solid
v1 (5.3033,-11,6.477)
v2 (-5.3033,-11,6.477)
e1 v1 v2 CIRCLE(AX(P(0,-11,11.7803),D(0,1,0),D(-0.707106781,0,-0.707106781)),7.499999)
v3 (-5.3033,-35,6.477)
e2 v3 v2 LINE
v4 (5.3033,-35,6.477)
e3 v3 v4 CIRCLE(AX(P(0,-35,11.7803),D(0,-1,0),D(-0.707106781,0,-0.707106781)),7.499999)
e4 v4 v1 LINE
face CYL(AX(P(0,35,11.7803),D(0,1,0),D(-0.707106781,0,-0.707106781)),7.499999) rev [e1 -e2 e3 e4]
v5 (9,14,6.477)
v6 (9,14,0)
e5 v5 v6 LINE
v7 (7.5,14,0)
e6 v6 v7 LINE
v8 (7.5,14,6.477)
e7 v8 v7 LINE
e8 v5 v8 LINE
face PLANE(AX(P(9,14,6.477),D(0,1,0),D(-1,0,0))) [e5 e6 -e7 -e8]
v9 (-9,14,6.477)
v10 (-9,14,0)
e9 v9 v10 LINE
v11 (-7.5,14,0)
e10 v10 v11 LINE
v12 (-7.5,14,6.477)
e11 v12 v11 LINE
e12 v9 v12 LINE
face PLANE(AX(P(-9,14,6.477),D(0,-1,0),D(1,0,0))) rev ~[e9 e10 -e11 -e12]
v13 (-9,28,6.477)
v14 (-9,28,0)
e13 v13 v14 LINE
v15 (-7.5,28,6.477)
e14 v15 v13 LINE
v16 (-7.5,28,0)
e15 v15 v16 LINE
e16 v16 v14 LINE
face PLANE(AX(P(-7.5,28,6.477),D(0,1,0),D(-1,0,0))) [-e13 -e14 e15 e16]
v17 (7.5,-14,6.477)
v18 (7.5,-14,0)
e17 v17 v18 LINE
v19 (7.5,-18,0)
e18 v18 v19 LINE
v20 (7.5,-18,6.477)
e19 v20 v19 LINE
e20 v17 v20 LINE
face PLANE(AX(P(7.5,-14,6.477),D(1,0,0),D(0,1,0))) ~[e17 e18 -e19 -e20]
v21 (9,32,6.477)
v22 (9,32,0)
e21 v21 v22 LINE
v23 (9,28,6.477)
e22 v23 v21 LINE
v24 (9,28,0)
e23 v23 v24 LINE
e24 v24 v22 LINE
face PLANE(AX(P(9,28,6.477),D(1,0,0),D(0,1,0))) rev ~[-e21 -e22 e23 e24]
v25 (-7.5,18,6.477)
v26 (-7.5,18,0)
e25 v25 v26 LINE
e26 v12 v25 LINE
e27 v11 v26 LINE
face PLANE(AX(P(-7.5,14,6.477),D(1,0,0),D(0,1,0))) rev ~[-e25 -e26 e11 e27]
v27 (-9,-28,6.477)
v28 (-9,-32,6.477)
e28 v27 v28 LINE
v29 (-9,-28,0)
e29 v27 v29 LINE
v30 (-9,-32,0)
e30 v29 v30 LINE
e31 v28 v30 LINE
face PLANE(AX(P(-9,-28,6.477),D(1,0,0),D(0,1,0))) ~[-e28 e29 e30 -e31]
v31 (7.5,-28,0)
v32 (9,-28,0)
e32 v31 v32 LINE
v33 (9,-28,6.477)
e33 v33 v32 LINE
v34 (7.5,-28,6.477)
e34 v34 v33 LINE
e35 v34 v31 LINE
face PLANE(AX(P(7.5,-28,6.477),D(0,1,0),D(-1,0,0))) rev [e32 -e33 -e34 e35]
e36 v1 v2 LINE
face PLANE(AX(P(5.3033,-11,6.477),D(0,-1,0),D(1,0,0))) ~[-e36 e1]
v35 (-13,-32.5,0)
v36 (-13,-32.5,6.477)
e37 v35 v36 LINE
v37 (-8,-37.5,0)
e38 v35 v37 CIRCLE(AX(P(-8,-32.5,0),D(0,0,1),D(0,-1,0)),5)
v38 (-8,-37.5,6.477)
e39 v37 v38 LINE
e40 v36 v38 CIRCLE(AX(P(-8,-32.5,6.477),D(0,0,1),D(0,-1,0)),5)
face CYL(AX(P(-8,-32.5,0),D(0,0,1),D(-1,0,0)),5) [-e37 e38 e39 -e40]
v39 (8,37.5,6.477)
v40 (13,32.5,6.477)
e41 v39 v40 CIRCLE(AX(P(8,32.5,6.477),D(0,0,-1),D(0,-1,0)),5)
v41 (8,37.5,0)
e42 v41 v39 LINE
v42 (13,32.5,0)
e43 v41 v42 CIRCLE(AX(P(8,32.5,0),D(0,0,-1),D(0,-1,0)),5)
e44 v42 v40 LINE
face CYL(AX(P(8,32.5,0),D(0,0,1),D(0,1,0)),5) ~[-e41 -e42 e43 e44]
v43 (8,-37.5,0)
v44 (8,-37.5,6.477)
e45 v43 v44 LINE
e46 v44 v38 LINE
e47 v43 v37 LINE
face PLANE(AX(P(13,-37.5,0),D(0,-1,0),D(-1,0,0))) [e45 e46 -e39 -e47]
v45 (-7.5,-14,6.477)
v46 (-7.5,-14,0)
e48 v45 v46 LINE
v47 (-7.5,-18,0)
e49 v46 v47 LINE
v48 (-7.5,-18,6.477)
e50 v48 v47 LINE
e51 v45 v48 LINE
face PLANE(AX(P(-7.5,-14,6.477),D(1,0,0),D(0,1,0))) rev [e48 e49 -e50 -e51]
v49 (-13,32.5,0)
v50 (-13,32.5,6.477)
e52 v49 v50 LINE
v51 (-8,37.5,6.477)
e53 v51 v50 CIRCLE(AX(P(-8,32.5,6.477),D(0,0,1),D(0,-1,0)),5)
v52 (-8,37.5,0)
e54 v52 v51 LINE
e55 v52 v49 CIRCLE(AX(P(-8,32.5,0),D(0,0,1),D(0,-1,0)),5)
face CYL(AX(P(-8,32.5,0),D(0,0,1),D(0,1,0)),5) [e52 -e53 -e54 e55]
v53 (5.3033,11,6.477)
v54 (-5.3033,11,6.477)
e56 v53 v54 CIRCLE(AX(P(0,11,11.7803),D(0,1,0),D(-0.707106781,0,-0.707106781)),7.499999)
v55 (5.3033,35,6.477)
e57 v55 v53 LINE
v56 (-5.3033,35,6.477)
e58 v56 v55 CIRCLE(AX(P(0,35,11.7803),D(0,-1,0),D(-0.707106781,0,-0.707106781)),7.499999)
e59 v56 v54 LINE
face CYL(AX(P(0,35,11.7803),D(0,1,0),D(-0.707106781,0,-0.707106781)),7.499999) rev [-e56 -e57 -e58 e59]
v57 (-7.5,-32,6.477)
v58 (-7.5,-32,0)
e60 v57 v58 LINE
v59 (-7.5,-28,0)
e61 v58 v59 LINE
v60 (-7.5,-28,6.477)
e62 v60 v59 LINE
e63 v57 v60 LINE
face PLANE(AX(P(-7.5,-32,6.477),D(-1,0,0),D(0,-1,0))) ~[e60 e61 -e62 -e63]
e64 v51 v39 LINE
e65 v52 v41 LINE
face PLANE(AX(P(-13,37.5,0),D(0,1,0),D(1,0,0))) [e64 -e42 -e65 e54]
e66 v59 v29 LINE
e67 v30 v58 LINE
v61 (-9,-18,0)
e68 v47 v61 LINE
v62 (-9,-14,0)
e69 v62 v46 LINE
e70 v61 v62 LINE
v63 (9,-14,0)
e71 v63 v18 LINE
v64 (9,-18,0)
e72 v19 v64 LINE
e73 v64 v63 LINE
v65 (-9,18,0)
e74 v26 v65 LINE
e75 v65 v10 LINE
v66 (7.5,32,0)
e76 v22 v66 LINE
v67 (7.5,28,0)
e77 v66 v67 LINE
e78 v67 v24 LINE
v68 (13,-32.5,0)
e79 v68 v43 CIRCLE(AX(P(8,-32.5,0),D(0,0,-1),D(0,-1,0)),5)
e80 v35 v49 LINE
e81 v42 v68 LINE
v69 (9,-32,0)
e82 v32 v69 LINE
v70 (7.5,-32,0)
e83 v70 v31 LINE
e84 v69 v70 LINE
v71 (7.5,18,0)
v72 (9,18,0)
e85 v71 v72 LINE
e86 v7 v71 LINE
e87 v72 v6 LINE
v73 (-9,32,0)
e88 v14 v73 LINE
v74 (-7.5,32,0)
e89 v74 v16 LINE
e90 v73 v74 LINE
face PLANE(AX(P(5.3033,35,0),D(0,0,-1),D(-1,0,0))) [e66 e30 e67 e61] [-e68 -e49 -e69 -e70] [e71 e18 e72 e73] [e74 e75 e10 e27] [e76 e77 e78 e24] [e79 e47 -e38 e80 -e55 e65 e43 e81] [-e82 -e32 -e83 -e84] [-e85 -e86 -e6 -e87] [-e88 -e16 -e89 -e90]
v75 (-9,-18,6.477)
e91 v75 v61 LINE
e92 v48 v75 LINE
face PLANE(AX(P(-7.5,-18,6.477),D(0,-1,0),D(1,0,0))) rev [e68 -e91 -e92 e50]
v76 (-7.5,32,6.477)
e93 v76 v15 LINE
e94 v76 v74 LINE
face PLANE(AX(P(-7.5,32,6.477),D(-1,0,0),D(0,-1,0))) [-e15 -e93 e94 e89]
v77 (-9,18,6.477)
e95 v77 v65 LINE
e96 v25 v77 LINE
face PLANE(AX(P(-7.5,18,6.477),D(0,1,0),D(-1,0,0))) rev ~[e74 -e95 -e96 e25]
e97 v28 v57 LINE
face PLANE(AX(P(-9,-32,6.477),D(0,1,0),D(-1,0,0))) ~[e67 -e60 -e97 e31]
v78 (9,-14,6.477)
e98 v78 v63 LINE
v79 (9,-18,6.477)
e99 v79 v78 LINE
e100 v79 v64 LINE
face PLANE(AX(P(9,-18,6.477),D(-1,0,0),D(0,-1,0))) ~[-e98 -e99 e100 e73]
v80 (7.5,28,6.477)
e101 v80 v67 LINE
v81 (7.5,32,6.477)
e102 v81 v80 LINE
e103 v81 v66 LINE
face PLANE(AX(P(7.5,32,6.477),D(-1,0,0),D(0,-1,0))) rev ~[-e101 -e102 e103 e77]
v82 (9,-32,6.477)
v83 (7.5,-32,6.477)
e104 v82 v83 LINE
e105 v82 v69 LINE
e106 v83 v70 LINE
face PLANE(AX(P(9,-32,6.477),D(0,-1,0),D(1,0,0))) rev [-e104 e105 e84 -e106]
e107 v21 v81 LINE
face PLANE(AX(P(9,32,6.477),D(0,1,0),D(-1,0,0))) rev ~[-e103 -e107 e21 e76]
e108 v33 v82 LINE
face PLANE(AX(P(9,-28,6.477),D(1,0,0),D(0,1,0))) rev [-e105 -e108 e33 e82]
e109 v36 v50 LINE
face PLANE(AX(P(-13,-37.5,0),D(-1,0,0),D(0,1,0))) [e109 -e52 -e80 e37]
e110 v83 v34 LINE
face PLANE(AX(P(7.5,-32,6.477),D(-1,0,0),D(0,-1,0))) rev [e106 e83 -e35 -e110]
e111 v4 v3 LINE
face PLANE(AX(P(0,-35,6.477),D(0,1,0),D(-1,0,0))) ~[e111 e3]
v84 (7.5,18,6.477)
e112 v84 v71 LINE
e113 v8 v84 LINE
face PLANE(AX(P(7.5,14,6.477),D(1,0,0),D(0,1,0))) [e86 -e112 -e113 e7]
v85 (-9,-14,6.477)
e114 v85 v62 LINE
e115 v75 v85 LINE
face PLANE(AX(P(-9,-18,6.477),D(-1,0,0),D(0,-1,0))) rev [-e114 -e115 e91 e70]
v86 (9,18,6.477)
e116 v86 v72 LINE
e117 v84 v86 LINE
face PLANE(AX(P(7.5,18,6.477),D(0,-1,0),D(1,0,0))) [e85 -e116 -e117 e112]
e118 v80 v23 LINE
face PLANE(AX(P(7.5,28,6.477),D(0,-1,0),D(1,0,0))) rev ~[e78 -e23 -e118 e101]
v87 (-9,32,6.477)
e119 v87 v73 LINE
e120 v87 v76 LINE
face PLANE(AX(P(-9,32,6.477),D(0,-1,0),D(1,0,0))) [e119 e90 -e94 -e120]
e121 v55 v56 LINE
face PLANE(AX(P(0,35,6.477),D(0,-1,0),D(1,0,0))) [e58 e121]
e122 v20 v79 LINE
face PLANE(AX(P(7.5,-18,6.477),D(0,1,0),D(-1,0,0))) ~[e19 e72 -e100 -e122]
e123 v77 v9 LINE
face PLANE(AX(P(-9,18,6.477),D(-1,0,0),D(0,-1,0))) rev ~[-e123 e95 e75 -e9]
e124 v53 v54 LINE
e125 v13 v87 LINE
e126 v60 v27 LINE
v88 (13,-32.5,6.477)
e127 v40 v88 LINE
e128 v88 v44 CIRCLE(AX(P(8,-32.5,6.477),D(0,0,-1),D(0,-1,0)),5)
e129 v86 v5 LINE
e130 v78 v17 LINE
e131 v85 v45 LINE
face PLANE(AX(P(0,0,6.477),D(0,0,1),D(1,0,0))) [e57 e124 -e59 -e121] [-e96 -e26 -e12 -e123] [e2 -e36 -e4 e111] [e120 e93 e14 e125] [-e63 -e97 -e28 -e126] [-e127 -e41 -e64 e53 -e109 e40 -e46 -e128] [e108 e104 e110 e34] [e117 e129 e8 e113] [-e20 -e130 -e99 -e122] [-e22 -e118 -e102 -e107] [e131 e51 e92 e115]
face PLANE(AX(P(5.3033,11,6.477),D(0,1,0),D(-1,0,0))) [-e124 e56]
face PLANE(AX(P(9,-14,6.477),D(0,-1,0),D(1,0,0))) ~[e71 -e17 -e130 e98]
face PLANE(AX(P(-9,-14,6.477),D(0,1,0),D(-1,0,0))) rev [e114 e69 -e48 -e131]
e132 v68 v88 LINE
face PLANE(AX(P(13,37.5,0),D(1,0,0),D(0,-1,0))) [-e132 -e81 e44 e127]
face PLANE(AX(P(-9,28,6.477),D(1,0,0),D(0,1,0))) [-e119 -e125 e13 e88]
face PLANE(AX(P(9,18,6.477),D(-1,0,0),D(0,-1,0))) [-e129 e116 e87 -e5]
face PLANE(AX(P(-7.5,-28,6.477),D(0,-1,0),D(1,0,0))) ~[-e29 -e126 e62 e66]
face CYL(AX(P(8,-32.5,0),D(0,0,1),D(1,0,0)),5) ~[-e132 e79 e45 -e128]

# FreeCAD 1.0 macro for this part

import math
import FreeCAD as App
import Part
import Sketcher
from FreeCAD import Vector


def edges_at(feature, points):
    """Names of the edges that pass closest to the given points."""
    edges = feature.Shape.Edges
    near = lambda p: min(range(len(edges)), key=lambda i: edges[i].distToShape(Part.Vertex(*p))[0])
    return sorted({f"Edge{near(p) + 1}" for p in points})

doc = App.newDocument("Part")
params = doc.addObject("Spreadsheet::Sheet", "Params")
for row, (alias, value) in enumerate([
    ("sketch1_width", "26 mm"),
    ("sketch1_height", "75 mm"),
    ("pad1_length", "6.477 mm"),
    ("sketch2_height", "24 mm"),
    ("sketch3_height", "4 mm"),
    ("sketch3_width", "1.5 mm"),
    ("sketch4_radius", "7.5 mm"),
    ("pad2_length", "70 mm"),
    ("fillet_radius", "5 mm"),
], start=1):
    params.set(f"A{row}", alias)
    params.set(f"B{row}", "=" + value)
    params.setAlias(f"B{row}", alias)

body = doc.addObject("PartDesign::Body", "Body")

# Sketch on XY plane
sketch1 = body.newObject("Sketcher::SketchObject", "Sketch")
sketch1.AttachmentSupport = (doc.getObject("XY_Plane"), [""])
sketch1.MapMode = "FlatFace"
sketch1.addGeometry([
    Part.LineSegment(Vector(13, 38, 0), Vector(-13, 38, 0)),
    Part.LineSegment(Vector(-13, 38, 0), Vector(-13, -38, 0)),
    Part.LineSegment(Vector(-13, -38, 0), Vector(13, -38, 0)),
    Part.LineSegment(Vector(13, -38, 0), Vector(13, 38, 0)),
], False)
sketch1.addConstraint([
    Sketcher.Constraint("Coincident", 0, 2, 1, 1),
    Sketcher.Constraint("Coincident", 1, 2, 2, 1),
    Sketcher.Constraint("Coincident", 2, 2, 3, 1),
    Sketcher.Constraint("Coincident", 3, 2, 0, 1),
    Sketcher.Constraint("Horizontal", 0),
    Sketcher.Constraint("Vertical", 1),
    Sketcher.Constraint("Horizontal", 2),
    Sketcher.Constraint("Vertical", 3),
    Sketcher.Constraint("Symmetric", 0, 2, 2, 2, -1, 1),
    Sketcher.Constraint("DistanceX", 0, 2, 0, 1, 26.0),
    Sketcher.Constraint("DistanceY", 1, 2, 1, 1, 75.0),
])
sketch1.setExpression("Constraints[9]", "Params.sketch1_width")
sketch1.setExpression("Constraints[10]", "Params.sketch1_height")
pad1 = body.newObject("PartDesign::Pad", "Pad")
pad1.Profile = sketch1
pad1.setExpression("Length", "Params.pad1_length")

# Sketch on XY plane
sketch2 = body.newObject("Sketcher::SketchObject", "Sketch001")
sketch2.AttachmentSupport = (doc.getObject("XY_Plane"), [""])
sketch2.MapMode = "FlatFace"
sketch2.AttachmentOffset = App.Placement(Vector(0, 0, 6.477), App.Rotation())
sketch2.addGeometry([
    Part.LineSegment(Vector(5, 11, 0), Vector(5, 35, 0)),
    Part.LineSegment(Vector(5, 35, 0), Vector(-5, 35, 0)),
    Part.LineSegment(Vector(-5, 35, 0), Vector(-5, 11, 0)),
    Part.LineSegment(Vector(-5, 11, 0), Vector(5, 11, 0)),
], False)
sketch2.addConstraint([
    Sketcher.Constraint("Coincident", 0, 2, 1, 1),
    Sketcher.Constraint("Coincident", 1, 2, 2, 1),
    Sketcher.Constraint("Coincident", 2, 2, 3, 1),
    Sketcher.Constraint("Coincident", 3, 2, 0, 1),
    Sketcher.Constraint("Vertical", 0),
    Sketcher.Constraint("Horizontal", 1),
    Sketcher.Constraint("Vertical", 2),
    Sketcher.Constraint("Horizontal", 3),
    Sketcher.Constraint("DistanceY", 0, 1, 0, 2, 24.0),
    Sketcher.Constraint("DistanceY", -1, 1, 0, 2, 35.0),
    Sketcher.Constraint("DistanceX", 1, 2, 1, 1, 10.6066),
    Sketcher.Constraint("DistanceX", -1, 1, 0, 2, 5.3033),
])
sketch2.setExpression("Constraints[8]", "Params.sketch2_height")
pocket1 = body.newObject("PartDesign::Pocket", "Pocket")
pocket1.Profile = sketch2
pocket1.Type = "ThroughAll"

# Sketch on XY plane
sketch3 = body.newObject("Sketcher::SketchObject", "Sketch002")
sketch3.AttachmentSupport = (doc.getObject("XY_Plane"), [""])
sketch3.MapMode = "FlatFace"
sketch3.AttachmentOffset = App.Placement(Vector(0, 0, 6.477), App.Rotation())
sketch3.addGeometry([
    Part.LineSegment(Vector(-9, 28, 0), Vector(-7.5, 28, 0)),  # 0
    Part.LineSegment(Vector(-7.5, 28, 0), Vector(-7.5, 32, 0)),  # 1
    Part.LineSegment(Vector(-7.5, 32, 0), Vector(-9, 32, 0)),  # 2
    Part.LineSegment(Vector(-9, 32, 0), Vector(-9, 28, 0)),  # 3
    Part.LineSegment(Vector(7.5, 32, 0), Vector(7.5, 28, 0)),  # 4
    Part.LineSegment(Vector(7.5, 28, 0), Vector(9, 28, 0)),  # 5
    Part.LineSegment(Vector(9, 28, 0), Vector(9, 32, 0)),  # 6
    Part.LineSegment(Vector(9, 32, 0), Vector(7.5, 32, 0)),  # 7
    Part.LineSegment(Vector(9, 18, 0), Vector(7.5, 18, 0)),  # 8
    Part.LineSegment(Vector(7.5, 18, 0), Vector(7.5, 14, 0)),  # 9
    Part.LineSegment(Vector(7.5, 14, 0), Vector(9, 14, 0)),  # 10
    Part.LineSegment(Vector(9, 14, 0), Vector(9, 18, 0)),  # 11
    Part.LineSegment(Vector(-7.5, 14, 0), Vector(-7.5, 18, 0)),  # 12
    Part.LineSegment(Vector(-7.5, 18, 0), Vector(-9, 18, 0)),  # 13
    Part.LineSegment(Vector(-9, 18, 0), Vector(-9, 14, 0)),  # 14
    Part.LineSegment(Vector(-9, 14, 0), Vector(-7.5, 14, 0)),  # 15
], False)
sketch3.addConstraint([
    Sketcher.Constraint("Coincident", 0, 2, 1, 1),
    Sketcher.Constraint("Coincident", 1, 2, 2, 1),
    Sketcher.Constraint("Coincident", 2, 2, 3, 1),
    Sketcher.Constraint("Coincident", 3, 2, 0, 1),
    Sketcher.Constraint("Coincident", 4, 2, 5, 1),
    Sketcher.Constraint("Coincident", 5, 2, 6, 1),
    Sketcher.Constraint("Coincident", 6, 2, 7, 1),
    Sketcher.Constraint("Coincident", 7, 2, 4, 1),
    Sketcher.Constraint("Coincident", 8, 2, 9, 1),
    Sketcher.Constraint("Coincident", 9, 2, 10, 1),
    Sketcher.Constraint("Coincident", 10, 2, 11, 1),
    Sketcher.Constraint("Coincident", 11, 2, 8, 1),
    Sketcher.Constraint("Coincident", 12, 2, 13, 1),
    Sketcher.Constraint("Coincident", 13, 2, 14, 1),
    Sketcher.Constraint("Coincident", 14, 2, 15, 1),
    Sketcher.Constraint("Coincident", 15, 2, 12, 1),
    Sketcher.Constraint("Horizontal", 0),
    Sketcher.Constraint("Vertical", 1),
    Sketcher.Constraint("Horizontal", 2),
    Sketcher.Constraint("Vertical", 3),
    Sketcher.Constraint("Vertical", 4),
    Sketcher.Constraint("Horizontal", 5),
    Sketcher.Constraint("Vertical", 6),
    Sketcher.Constraint("Horizontal", 7),
    Sketcher.Constraint("Horizontal", 8),
    Sketcher.Constraint("Vertical", 9),
    Sketcher.Constraint("Horizontal", 10),
    Sketcher.Constraint("Vertical", 11),
    Sketcher.Constraint("Vertical", 12),
    Sketcher.Constraint("Horizontal", 13),
    Sketcher.Constraint("Vertical", 14),
    Sketcher.Constraint("Horizontal", 15),
    Sketcher.Constraint("Symmetric", 0, 2, 4, 2, -2),
    Sketcher.Constraint("Symmetric", 2, 2, 6, 2, -2),
    Sketcher.Constraint("Symmetric", 8, 2, 12, 2, -2),
    Sketcher.Constraint("Symmetric", 10, 2, 14, 2, -2),
    Sketcher.Constraint("Vertical", 7, 2, 8, 2),
    Sketcher.Constraint("Vertical", 6, 2, 10, 2),
    Sketcher.Constraint("Equal", 6, 9),
    Sketcher.Constraint("DistanceY", 1, 1, 1, 2, 4.0),
    Sketcher.Constraint("DistanceX", 0, 1, 0, 2, 1.5),
    Sketcher.Constraint("DistanceX", 0, 2, 4, 2, 15.0),
    Sketcher.Constraint("DistanceY", -1, 1, 0, 2, 28.0),
    Sketcher.Constraint("DistanceY", -1, 1, 8, 2, 18.0),
])
sketch3.setExpression("Constraints[39]", "Params.sketch3_height")
sketch3.setExpression("Constraints[40]", "Params.sketch3_width")
pocket2 = body.newObject("PartDesign::Pocket", "Pocket001")
pocket2.Profile = sketch3
pocket2.Type = "ThroughAll"
doc.recompute()

mirrored = body.newObject("PartDesign::Mirrored", "Mirrored")
mirrored.Originals = [pocket2, pocket1]
mirrored.MirrorPlane = (doc.getObject("XZ_Plane"), [""])
body.Tip = mirrored

# Sketch on XZ plane
sketch4 = body.newObject("Sketcher::SketchObject", "Sketch003")
sketch4.AttachmentSupport = (doc.getObject("XZ_Plane"), [""])
sketch4.MapMode = "FlatFace"
sketch4.AttachmentOffset = App.Placement(Vector(0, 0, -35), App.Rotation())
sketch4.addGeometry([
    Part.LineSegment(Vector(-5, 0, 0), Vector(5, 0, 0)),
    Part.LineSegment(Vector(5, 0, 0), Vector(5, 6, 0)),
    Part.ArcOfCircle(Part.Circle(Vector(0, 12, 0), Vector(0, 0, 1), 7), math.radians(-135), math.radians(-45)),
    Part.LineSegment(Vector(-5, 6, 0), Vector(-5, 0, 0)),
], False)
sketch4.addConstraint([
    Sketcher.Constraint("Coincident", 0, 2, 1, 1),
    Sketcher.Constraint("Coincident", 1, 2, 2, 2),
    Sketcher.Constraint("Coincident", 2, 1, 3, 1),
    Sketcher.Constraint("Coincident", 3, 2, 0, 1),
    Sketcher.Constraint("Horizontal", 0),
    Sketcher.Constraint("Vertical", 1),
    Sketcher.Constraint("Vertical", 3),
    Sketcher.Constraint("Symmetric", 0, 2, 3, 2, -1, 1),
    Sketcher.Constraint("PointOnObject", 2, 3, -2),
    Sketcher.Constraint("Radius", 2, 7.5),
    Sketcher.Constraint("DistanceY", 1, 1, 1, 2, 6.477),
    Sketcher.Constraint("DistanceX", 0, 1, 0, 2, 10.6066),
])
sketch4.setExpression("Constraints[9]", "Params.sketch4_radius")
pad2 = body.newObject("PartDesign::Pad", "Pad001")
pad2.Profile = sketch4
pad2.setExpression("Length", "Params.pad2_length")
doc.recompute()

fillet = body.newObject("PartDesign::Fillet", "Fillet")
fillet.Base = (pad2, edges_at(pad2, [
    (13, -37.5, 3.239),
    (13, 37.5, 3.239),
    (-13, 37.5, 3.239),
    (-13, -37.5, 3.239),
]))
fillet.setExpression("Radius", "Params.fillet_radius")

doc.recompute()
